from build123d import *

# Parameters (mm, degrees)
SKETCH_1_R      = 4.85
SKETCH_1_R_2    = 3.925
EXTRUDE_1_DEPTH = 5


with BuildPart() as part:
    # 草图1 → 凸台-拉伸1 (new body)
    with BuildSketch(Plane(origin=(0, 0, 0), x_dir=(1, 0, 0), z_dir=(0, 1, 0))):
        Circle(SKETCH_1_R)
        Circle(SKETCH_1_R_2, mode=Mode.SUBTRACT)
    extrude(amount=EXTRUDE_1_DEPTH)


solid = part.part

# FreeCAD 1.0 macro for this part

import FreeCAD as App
import Part
import Sketcher

V = App.Vector
Q = App.Units.Quantity

doc = App.newDocument("Part")
body = doc.addObject("PartDesign::Body", "Body")

sketch1 = body.newObject("Sketcher::SketchObject", "Sketch")
sketch1.AttachmentSupport = (doc.getObject("XZ_Plane"), [""])
sketch1.MapMode = "FlatFace"
sketch1.addGeometry(Part.Circle(V(0, 0, 0), V(0, 0, 1), 4.85), False)
sketch1.addGeometry(Part.Circle(V(0, 0, 0), V(0, 0, 1), 3.925), False)
sketch1.addConstraint(Sketcher.Constraint("Coincident", 0, 3, -1, 1))
sketch1.addConstraint(Sketcher.Constraint("Coincident", 1, 3, -1, 1))
sketch1.addConstraint(Sketcher.Constraint("Diameter", 0, Q("9.7 mm")))
sketch1.addConstraint(Sketcher.Constraint("Diameter", 1, Q("7.85 mm")))
pad1 = body.newObject("PartDesign::Pad", "Pad")
pad1.Profile = sketch1
pad1.Length = 5
pad1.Reversed = True

doc.recompute()
